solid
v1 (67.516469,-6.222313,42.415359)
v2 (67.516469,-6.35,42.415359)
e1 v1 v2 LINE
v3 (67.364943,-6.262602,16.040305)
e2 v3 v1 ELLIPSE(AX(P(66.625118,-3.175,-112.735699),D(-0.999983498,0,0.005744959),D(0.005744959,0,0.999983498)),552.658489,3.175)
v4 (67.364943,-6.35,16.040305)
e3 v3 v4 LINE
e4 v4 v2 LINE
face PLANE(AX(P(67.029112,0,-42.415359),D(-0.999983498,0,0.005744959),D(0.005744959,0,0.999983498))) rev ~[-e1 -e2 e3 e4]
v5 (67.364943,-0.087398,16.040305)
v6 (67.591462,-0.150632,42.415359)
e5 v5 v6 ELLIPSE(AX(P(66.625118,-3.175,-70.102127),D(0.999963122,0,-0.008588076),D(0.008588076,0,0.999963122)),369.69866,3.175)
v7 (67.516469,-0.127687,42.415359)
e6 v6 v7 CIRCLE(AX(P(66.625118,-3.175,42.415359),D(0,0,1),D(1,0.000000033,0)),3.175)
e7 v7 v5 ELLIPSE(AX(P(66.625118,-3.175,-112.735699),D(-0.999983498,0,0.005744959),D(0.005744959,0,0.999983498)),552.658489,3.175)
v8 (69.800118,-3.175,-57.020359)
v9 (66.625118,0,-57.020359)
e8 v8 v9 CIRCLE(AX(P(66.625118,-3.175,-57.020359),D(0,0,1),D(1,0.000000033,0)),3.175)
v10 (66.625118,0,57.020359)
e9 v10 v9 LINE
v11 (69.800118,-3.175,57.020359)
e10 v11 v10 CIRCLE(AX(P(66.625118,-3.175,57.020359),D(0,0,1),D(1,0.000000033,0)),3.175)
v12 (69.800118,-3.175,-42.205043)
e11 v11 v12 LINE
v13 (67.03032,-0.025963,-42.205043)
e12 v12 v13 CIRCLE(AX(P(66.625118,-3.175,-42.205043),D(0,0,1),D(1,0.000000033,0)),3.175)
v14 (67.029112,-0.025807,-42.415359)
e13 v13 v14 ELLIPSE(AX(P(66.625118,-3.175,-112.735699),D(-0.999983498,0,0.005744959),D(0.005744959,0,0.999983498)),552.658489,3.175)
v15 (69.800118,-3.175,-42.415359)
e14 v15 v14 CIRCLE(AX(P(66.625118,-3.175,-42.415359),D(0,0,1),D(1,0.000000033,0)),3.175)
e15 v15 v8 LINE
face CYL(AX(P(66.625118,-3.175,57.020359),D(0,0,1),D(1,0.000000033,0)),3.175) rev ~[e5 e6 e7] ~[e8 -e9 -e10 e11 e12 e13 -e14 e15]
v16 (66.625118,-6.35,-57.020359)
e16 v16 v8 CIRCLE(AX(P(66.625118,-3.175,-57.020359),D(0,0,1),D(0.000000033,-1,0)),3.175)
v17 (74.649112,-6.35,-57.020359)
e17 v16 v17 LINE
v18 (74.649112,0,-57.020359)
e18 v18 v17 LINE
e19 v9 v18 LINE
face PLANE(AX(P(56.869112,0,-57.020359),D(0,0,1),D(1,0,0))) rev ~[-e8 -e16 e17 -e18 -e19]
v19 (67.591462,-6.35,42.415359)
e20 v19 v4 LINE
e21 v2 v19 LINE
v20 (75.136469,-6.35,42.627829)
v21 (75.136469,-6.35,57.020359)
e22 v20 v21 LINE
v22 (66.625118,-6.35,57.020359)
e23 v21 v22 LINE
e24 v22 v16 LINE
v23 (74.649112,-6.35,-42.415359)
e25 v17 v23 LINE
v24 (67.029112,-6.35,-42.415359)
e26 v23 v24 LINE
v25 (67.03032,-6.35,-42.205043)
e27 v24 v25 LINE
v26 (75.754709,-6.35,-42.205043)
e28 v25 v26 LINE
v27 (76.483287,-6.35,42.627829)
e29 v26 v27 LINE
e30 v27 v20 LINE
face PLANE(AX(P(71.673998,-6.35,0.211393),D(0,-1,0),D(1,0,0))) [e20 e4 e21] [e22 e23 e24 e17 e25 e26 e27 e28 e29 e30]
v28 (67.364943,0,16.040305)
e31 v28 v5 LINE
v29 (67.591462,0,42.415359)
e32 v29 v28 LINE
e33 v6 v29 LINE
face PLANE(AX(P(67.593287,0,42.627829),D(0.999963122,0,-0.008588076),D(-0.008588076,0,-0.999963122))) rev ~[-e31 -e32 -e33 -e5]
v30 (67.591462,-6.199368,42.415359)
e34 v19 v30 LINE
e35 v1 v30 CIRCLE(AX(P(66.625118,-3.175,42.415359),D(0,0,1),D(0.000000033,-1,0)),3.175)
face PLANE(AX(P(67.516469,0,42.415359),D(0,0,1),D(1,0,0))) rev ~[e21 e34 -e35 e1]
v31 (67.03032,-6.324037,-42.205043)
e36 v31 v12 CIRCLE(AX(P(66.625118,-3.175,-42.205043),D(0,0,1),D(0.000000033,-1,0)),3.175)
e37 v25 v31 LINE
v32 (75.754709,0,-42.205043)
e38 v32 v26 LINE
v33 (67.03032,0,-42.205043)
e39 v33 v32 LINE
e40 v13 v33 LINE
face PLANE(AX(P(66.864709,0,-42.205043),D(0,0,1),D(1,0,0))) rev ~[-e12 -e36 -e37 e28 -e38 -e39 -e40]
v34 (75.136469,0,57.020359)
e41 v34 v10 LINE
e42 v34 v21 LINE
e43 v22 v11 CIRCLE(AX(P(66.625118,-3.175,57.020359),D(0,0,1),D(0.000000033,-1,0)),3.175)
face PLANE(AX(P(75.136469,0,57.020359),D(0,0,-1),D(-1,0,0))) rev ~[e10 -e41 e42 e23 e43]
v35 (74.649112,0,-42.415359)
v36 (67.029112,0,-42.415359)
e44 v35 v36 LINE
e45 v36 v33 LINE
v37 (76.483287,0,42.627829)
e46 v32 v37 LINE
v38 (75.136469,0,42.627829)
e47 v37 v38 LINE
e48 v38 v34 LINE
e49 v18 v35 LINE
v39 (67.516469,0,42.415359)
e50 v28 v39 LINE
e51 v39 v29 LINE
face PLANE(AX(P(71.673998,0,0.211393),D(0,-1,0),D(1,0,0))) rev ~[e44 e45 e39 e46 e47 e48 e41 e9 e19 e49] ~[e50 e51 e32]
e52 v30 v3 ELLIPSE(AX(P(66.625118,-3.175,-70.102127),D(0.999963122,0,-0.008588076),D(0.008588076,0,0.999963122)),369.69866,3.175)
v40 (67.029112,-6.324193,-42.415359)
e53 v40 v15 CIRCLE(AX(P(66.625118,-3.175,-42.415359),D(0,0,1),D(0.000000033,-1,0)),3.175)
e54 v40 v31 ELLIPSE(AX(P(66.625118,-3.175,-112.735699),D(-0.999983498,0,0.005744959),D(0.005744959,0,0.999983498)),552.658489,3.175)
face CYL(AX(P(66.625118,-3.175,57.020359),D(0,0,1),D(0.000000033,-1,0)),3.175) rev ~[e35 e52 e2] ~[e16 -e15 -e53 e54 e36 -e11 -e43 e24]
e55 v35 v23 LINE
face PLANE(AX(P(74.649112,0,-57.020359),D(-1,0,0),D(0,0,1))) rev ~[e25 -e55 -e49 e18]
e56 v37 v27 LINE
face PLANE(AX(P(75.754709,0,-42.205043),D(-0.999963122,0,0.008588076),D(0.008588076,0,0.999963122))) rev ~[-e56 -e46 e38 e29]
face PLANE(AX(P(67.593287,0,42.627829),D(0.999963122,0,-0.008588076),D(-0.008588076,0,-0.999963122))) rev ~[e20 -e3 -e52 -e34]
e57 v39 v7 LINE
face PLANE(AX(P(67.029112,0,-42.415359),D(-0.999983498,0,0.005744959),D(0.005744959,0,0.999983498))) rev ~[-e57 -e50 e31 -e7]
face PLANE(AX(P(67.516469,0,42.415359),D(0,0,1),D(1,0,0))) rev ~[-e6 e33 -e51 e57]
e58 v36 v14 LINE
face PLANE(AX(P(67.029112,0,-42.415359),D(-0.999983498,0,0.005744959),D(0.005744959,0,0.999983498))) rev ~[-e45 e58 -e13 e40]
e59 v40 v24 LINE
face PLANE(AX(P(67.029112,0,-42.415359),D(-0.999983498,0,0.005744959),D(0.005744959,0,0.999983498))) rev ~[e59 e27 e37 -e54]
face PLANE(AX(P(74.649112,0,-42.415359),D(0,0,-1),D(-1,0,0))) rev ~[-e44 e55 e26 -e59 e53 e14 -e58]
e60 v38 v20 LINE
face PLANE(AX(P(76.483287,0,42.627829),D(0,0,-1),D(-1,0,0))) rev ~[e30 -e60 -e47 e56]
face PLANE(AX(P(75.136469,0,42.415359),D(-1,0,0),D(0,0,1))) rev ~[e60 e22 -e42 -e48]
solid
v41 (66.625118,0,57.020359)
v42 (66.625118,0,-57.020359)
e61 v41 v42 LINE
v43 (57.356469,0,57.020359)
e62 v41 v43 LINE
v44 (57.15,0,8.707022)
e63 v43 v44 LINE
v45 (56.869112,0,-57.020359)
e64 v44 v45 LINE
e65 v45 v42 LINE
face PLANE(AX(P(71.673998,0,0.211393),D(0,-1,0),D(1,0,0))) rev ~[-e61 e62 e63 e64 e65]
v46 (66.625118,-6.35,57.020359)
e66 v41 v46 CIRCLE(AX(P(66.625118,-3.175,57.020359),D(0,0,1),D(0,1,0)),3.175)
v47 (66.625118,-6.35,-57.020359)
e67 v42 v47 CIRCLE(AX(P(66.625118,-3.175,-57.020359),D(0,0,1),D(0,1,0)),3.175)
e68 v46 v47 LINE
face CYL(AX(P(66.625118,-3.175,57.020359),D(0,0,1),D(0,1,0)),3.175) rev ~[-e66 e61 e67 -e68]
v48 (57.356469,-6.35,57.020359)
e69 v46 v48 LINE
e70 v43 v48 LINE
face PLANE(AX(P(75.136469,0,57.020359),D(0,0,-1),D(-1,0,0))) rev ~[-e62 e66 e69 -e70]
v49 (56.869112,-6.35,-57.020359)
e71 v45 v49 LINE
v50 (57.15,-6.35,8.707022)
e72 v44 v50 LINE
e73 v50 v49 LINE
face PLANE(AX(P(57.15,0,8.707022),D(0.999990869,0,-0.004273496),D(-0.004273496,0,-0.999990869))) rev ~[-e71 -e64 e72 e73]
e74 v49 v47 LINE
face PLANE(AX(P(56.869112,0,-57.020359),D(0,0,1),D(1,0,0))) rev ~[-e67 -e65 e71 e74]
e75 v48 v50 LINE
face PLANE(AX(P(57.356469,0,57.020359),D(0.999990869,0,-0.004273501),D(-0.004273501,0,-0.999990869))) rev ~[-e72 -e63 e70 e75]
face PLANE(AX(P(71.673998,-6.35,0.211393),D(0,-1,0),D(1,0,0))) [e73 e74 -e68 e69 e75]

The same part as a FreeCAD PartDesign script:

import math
import FreeCAD as App
import Part
import Sketcher
Q = App.Units.Quantity


def add_polygon(sketch, points):
    """Adds a closed chain of lines whose ends are joined by coincident constraints."""
    first, n = sketch.GeometryCount, len(points)
    for a, b in zip(points, points[1:] + points[:1]):
        sketch.addGeometry(Part.LineSegment(App.Vector(*a, 0), App.Vector(*b, 0)), False)
    for i in range(n):
        sketch.addConstraint(Sketcher.Constraint("Coincident", first + i, 2, first + (i + 1) % n, 1))

doc = App.newDocument("Part")
body = doc.addObject("PartDesign::Body", "Body")
body.AllowCompound = True

# Sketch on XZ plane
sketch1 = body.newObject("Sketcher::SketchObject", "Sketch")
sketch1.AttachmentSupport = (doc.getObject("XZ_Plane"), [""])
sketch1.MapMode = "FlatFace"
add_polygon(sketch1, [(75, 57), (57, 57), (57, 9), (57, -57), (75, -57), (75, -42), (67, -42), (68, 42), (75, 42)])  # lines 0-8
sketch1.addConstraint(Sketcher.Constraint("Horizontal", 0))
sketch1.addConstraint(Sketcher.Constraint("Horizontal", 3))
sketch1.addConstraint(Sketcher.Constraint("Vertical", 4))
sketch1.addConstraint(Sketcher.Constraint("Horizontal", 5))
sketch1.addConstraint(Sketcher.Constraint("Horizontal", 7))
sketch1.addConstraint(Sketcher.Constraint("Vertical", 8))
sketch1.addConstraint(Sketcher.Constraint("Parallel", 1, 2))
sketch1.addConstraint(Sketcher.Constraint("Equal", 0, 3))
sketch1.addConstraint(Sketcher.Constraint("Equal", 5, 7))
sketch1.addConstraint(Sketcher.Constraint("Equal", 4, 8))
sketch1.addConstraint(Sketcher.Constraint("DistanceX", 0, 2, 0, 1, Q("0.7 in")))
sketch1.addConstraint(Sketcher.Constraint("DistanceX", 5, 2, 5, 1, Q("0.3 in")))
sketch1.addConstraint(Sketcher.Constraint("DistanceY", 4, 1, 4, 2, Q("0.575 in")))
sketch1.addConstraint(Sketcher.Constraint("DistanceX", -1, 1, 1, 2, Q("2.25 in")))
sketch1.addConstraint(Sketcher.Constraint("DistanceY", 1, 2, 0, 2, Q("1.9020999 in")))
sketch1.addConstraint(Sketcher.Constraint("Distance", 2, 65.727981))
sketch1.addConstraint(Sketcher.Constraint("DistanceX", -1, 1, 0, 2, 57.356469))
sketch1.addConstraint(Sketcher.Constraint("DistanceY", -1, 1, 0, 2, 57.020359))
pad1 = body.newObject("PartDesign::Pad", "Pad")
pad1.Profile = sketch1
pad1.Length = Q("0.25 in")

# Sketch on XZ plane
sketch2 = body.newObject("Sketcher::SketchObject", "Sketch001")
sketch2.AttachmentSupport = (doc.getObject("XZ_Plane"), [""])
sketch2.MapMode = "FlatFace"
add_polygon(sketch2, [(76, 43), (68, 43), (67, -42), (76, -42)])  # lines 0-3
sketch2.addConstraint(Sketcher.Constraint("Horizontal", 0))
sketch2.addConstraint(Sketcher.Constraint("Horizontal", 2))
sketch2.addConstraint(Sketcher.Constraint("Parallel", 1, 3))
sketch2.addConstraint(Sketcher.Constraint("DistanceX", 0, 2, 0, 1, Q("0.35 in")))
sketch2.addConstraint(Sketcher.Constraint("Distance", 1, Q("3.34 in")))
sketch2.addConstraint(Sketcher.Constraint("DistanceY", -1, 1, 0, 2, 42.627829))
sketch2.addConstraint(Sketcher.Constraint("DistanceX", -1, 1, 1, 2, 66.864709))
sketch2.addConstraint(Sketcher.Constraint("DistanceX", -1, 1, 0, 2, 67.593287))
pad2 = body.newObject("PartDesign::Pad", "Pad001")
pad2.Profile = sketch2
pad2.Length = Q("0.25 in")

# Sketch on XY plane
sketch3 = body.newObject("Sketcher::SketchObject", "Sketch002")
sketch3.AttachmentSupport = (doc.getObject("XY_Plane"), [""])
sketch3.MapMode = "FlatFace"
sketch3.AttachmentOffset = App.Placement(App.Vector(0, 0, 57.020359), App.Rotation())
sketch3.addGeometry(Part.ArcOfCircle(Part.Circle(App.Vector(66.6, -3.2, 0), App.Vector(0, 0, 1), 3.2), math.radians(-90), math.radians(0)), False)
sketch3.addGeometry(Part.ArcOfCircle(Part.Circle(App.Vector(66.6, -3.2, 0), App.Vector(0, 0, 1), 3.2), math.radians(0), math.radians(90)), False)
sketch3.addGeometry(Part.ArcOfCircle(Part.Circle(App.Vector(66.6, -3.2, 0), App.Vector(0, 0, 1), 3.2), math.radians(90), math.radians(270)), False)
sketch3.addConstraint(Sketcher.Constraint("Tangent", 0, 2, 1, 1))
sketch3.addConstraint(Sketcher.Constraint("Tangent", 1, 2, 2, 1))
sketch3.addConstraint(Sketcher.Constraint("Tangent", 2, 2, 0, 1))
sketch3.addConstraint(Sketcher.Constraint("PointOnObject", 1, 2, -1))
sketch3.addConstraint(Sketcher.Constraint("Horizontal", 2, 3, 0, 2))
sketch3.addConstraint(Sketcher.Constraint("Vertical", 2, 3, 1, 2))
sketch3.addConstraint(Sketcher.Constraint("Vertical", 1, 2, 2, 2))
sketch3.addConstraint(Sketcher.Constraint("Radius", 0, Q("0.125 in")))
sketch3.addConstraint(Sketcher.Constraint("DistanceX", -1, 1, 2, 3, 66.625118))
pocket1 = body.newObject("PartDesign::Pocket", "Pocket")
pocket1.Profile = sketch3
pocket1.Type = "ThroughAll"

doc.recompute()
